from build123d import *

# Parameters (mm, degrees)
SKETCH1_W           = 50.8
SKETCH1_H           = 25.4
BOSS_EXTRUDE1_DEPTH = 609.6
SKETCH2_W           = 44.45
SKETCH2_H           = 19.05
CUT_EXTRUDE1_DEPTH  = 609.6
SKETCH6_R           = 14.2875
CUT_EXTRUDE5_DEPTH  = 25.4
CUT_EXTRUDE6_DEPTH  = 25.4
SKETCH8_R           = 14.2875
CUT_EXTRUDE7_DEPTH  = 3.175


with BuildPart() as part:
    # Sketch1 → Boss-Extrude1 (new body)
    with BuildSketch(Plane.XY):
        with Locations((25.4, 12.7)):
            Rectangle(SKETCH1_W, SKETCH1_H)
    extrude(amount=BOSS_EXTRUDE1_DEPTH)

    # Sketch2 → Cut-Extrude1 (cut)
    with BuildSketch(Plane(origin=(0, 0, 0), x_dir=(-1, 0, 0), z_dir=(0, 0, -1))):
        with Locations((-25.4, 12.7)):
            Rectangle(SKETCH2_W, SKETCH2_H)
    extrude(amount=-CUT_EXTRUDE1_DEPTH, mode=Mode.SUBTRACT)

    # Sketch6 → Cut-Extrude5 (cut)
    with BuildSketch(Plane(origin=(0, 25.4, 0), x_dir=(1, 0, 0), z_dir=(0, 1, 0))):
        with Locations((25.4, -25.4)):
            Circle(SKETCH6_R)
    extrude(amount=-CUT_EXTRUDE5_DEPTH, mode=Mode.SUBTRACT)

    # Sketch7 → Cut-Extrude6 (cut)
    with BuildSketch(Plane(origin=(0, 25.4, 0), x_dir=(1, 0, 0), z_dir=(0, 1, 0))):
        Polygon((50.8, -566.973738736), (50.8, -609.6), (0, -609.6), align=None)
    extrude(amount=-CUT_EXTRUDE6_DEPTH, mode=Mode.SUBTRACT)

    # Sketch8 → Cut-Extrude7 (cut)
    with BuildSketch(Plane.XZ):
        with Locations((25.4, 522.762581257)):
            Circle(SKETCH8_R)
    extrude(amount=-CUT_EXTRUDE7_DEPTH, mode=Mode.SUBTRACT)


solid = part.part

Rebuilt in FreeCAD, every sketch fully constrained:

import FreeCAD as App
import Part
import Sketcher

V = App.Vector
Q = App.Units.Quantity

doc = App.newDocument("Part")
body = doc.addObject("PartDesign::Body", "Body")

sketch1 = body.newObject("Sketcher::SketchObject", "Sketch")
sketch1.AttachmentSupport = (doc.getObject("XY_Plane"), [""])
sketch1.MapMode = "FlatFace"
sketch1.addGeometry(Part.LineSegment(V(0, 25, 0), V(0, 0, 0)), False)
sketch1.addGeometry(Part.LineSegment(V(0, 0, 0), V(51, 0, 0)), False)
sketch1.addGeometry(Part.LineSegment(V(51, 0, 0), V(51, 25, 0)), False)
sketch1.addGeometry(Part.LineSegment(V(51, 25, 0), V(0, 25, 0)), False)
sketch1.addConstraint(Sketcher.Constraint("Coincident", 0, 2, 1, 1))
sketch1.addConstraint(Sketcher.Constraint("Coincident", 1, 2, 2, 1))
sketch1.addConstraint(Sketcher.Constraint("Coincident", 2, 2, 3, 1))
sketch1.addConstraint(Sketcher.Constraint("Coincident", 3, 2, 0, 1))
sketch1.addConstraint(Sketcher.Constraint("Vertical", 0))
sketch1.addConstraint(Sketcher.Constraint("Horizontal", 1))
sketch1.addConstraint(Sketcher.Constraint("Vertical", 2))
sketch1.addConstraint(Sketcher.Constraint("Horizontal", 3))
sketch1.addConstraint(Sketcher.Constraint("Coincident", 0, 2, -1, 1))
sketch1.addConstraint(Sketcher.Constraint("DistanceX", 1, 1, 1, 2, Q("2 in")))
sketch1.addConstraint(Sketcher.Constraint("DistanceY", 0, 2, 0, 1, Q("1 in")))
pad1 = body.newObject("PartDesign::Pad", "Pad")
pad1.Profile = sketch1
pad1.Length = Q("24 in")

sketch2 = body.newObject("Sketcher::SketchObject", "Sketch001")
sketch2.AttachmentSupport = (doc.getObject("XY_Plane"), [""])
sketch2.MapMode = "FlatFace"
sketch2.addGeometry(Part.LineSegment(V(48, 22, 0), V(48, 3, 0)), False)
sketch2.addGeometry(Part.LineSegment(V(48, 3, 0), V(3, 3, 0)), False)
sketch2.addGeometry(Part.LineSegment(V(3, 3, 0), V(3, 22, 0)), False)
sketch2.addGeometry(Part.LineSegment(V(3, 22, 0), V(48, 22, 0)), False)
sketch2.addConstraint(Sketcher.Constraint("Coincident", 0, 2, 1, 1))
sketch2.addConstraint(Sketcher.Constraint("Coincident", 1, 2, 2, 1))
sketch2.addConstraint(Sketcher.Constraint("Coincident", 2, 2, 3, 1))
sketch2.addConstraint(Sketcher.Constraint("Coincident", 3, 2, 0, 1))
sketch2.addConstraint(Sketcher.Constraint("Vertical", 0))
sketch2.addConstraint(Sketcher.Constraint("Horizontal", 1))
sketch2.addConstraint(Sketcher.Constraint("Vertical", 2))
sketch2.addConstraint(Sketcher.Constraint("Horizontal", 3))
sketch2.addConstraint(Sketcher.Constraint("DistanceX", 1, 2, 1, 1, Q("1.75 in")))
sketch2.addConstraint(Sketcher.Constraint("DistanceY", 0, 2, 0, 1, Q("0.75 in")))
sketch2.addConstraint(Sketcher.Constraint("DistanceX", -1, 1, 0, 2, Q("1.875 in")))
sketch2.addConstraint(Sketcher.Constraint("DistanceY", -1, 1, 0, 2, Q("0.125 in")))
pocket1 = body.newObject("PartDesign::Pocket", "Pocket")
pocket1.Profile = sketch2
pocket1.Length = Q("24 in")
pocket1.Reversed = True

sketch3 = body.newObject("Sketcher::SketchObject", "Sketch002")
sketch3.AttachmentSupport = (doc.getObject("XZ_Plane"), [""])
sketch3.MapMode = "FlatFace"
sketch3.AttachmentOffset = App.Placement(V(0, 0, -1 * 25.4), App.Rotation())
sketch3.addGeometry(Part.Circle(V(25, 25, 0), V(0, 0, 1), 14), False)
sketch3.addConstraint(Sketcher.Constraint("Diameter", 0, Q("1.125 in")))
sketch3.addConstraint(Sketcher.Constraint("DistanceX", -1, 1, 0, 3, Q("1 in")))
sketch3.addConstraint(Sketcher.Constraint("DistanceY", -1, 1, 0, 3, Q("1 in")))
pocket2 = body.newObject("PartDesign::Pocket", "Pocket001")
pocket2.Profile = sketch3
pocket2.Length = Q("1 in")
pocket2.Reversed = True

sketch4 = body.newObject("Sketcher::SketchObject", "Sketch003")
sketch4.AttachmentSupport = (doc.getObject("XZ_Plane"), [""])
sketch4.MapMode = "FlatFace"
sketch4.AttachmentOffset = App.Placement(V(0, 0, -1 * 25.4), App.Rotation())
sketch4.addGeometry(Part.LineSegment(V(51, 610, 0), V(51, 567, 0)), False)
sketch4.addGeometry(Part.LineSegment(V(51, 567, 0), V(0, 610, 0)), False)
sketch4.addGeometry(Part.LineSegment(V(0, 610, 0), V(51, 610, 0)), False)
sketch4.addConstraint(Sketcher.Constraint("Coincident", 0, 2, 1, 1))
sketch4.addConstraint(Sketcher.Constraint("Coincident", 1, 2, 2, 1))
sketch4.addConstraint(Sketcher.Constraint("Coincident", 2, 2, 0, 1))
sketch4.addConstraint(Sketcher.Constraint("Vertical", 0))
sketch4.addConstraint(Sketcher.Constraint("Horizontal", 2))
sketch4.addConstraint(Sketcher.Constraint("PointOnObject", 1, 2, -2))
sketch4.addConstraint(Sketcher.Constraint("DistanceX", 2, 1, 2, 2, Q("2 in")))
sketch4.addConstraint(Sketcher.Constraint("DistanceY", -1, 1, 1, 2, Q("24 in")))
sketch4.addConstraint(Sketcher.Constraint("Angle", 1, Q("140 deg")))
pocket3 = body.newObject("PartDesign::Pocket", "Pocket002")
pocket3.Profile = sketch4
pocket3.Length = Q("1 in")
pocket3.Reversed = True

sketch5 = body.newObject("Sketcher::SketchObject", "Sketch004")
sketch5.AttachmentSupport = (doc.getObject("XZ_Plane"), [""])
sketch5.MapMode = "FlatFace"
sketch5.addGeometry(Part.Circle(V(25, 523, 0), V(0, 0, 1), 14), False)
sketch5.addConstraint(Sketcher.Constraint("Diameter", 0, Q("1.125 in")))
sketch5.addConstraint(Sketcher.Constraint("DistanceX", -1, 1, 0, 3, Q("1 in")))
sketch5.addConstraint(Sketcher.Constraint("DistanceY", -1, 1, 0, 3, 522.762581))
pocket4 = body.newObject("PartDesign::Pocket", "Pocket003")
pocket4.Profile = sketch5
pocket4.Length = Q("0.125 in")

doc.recompute()
